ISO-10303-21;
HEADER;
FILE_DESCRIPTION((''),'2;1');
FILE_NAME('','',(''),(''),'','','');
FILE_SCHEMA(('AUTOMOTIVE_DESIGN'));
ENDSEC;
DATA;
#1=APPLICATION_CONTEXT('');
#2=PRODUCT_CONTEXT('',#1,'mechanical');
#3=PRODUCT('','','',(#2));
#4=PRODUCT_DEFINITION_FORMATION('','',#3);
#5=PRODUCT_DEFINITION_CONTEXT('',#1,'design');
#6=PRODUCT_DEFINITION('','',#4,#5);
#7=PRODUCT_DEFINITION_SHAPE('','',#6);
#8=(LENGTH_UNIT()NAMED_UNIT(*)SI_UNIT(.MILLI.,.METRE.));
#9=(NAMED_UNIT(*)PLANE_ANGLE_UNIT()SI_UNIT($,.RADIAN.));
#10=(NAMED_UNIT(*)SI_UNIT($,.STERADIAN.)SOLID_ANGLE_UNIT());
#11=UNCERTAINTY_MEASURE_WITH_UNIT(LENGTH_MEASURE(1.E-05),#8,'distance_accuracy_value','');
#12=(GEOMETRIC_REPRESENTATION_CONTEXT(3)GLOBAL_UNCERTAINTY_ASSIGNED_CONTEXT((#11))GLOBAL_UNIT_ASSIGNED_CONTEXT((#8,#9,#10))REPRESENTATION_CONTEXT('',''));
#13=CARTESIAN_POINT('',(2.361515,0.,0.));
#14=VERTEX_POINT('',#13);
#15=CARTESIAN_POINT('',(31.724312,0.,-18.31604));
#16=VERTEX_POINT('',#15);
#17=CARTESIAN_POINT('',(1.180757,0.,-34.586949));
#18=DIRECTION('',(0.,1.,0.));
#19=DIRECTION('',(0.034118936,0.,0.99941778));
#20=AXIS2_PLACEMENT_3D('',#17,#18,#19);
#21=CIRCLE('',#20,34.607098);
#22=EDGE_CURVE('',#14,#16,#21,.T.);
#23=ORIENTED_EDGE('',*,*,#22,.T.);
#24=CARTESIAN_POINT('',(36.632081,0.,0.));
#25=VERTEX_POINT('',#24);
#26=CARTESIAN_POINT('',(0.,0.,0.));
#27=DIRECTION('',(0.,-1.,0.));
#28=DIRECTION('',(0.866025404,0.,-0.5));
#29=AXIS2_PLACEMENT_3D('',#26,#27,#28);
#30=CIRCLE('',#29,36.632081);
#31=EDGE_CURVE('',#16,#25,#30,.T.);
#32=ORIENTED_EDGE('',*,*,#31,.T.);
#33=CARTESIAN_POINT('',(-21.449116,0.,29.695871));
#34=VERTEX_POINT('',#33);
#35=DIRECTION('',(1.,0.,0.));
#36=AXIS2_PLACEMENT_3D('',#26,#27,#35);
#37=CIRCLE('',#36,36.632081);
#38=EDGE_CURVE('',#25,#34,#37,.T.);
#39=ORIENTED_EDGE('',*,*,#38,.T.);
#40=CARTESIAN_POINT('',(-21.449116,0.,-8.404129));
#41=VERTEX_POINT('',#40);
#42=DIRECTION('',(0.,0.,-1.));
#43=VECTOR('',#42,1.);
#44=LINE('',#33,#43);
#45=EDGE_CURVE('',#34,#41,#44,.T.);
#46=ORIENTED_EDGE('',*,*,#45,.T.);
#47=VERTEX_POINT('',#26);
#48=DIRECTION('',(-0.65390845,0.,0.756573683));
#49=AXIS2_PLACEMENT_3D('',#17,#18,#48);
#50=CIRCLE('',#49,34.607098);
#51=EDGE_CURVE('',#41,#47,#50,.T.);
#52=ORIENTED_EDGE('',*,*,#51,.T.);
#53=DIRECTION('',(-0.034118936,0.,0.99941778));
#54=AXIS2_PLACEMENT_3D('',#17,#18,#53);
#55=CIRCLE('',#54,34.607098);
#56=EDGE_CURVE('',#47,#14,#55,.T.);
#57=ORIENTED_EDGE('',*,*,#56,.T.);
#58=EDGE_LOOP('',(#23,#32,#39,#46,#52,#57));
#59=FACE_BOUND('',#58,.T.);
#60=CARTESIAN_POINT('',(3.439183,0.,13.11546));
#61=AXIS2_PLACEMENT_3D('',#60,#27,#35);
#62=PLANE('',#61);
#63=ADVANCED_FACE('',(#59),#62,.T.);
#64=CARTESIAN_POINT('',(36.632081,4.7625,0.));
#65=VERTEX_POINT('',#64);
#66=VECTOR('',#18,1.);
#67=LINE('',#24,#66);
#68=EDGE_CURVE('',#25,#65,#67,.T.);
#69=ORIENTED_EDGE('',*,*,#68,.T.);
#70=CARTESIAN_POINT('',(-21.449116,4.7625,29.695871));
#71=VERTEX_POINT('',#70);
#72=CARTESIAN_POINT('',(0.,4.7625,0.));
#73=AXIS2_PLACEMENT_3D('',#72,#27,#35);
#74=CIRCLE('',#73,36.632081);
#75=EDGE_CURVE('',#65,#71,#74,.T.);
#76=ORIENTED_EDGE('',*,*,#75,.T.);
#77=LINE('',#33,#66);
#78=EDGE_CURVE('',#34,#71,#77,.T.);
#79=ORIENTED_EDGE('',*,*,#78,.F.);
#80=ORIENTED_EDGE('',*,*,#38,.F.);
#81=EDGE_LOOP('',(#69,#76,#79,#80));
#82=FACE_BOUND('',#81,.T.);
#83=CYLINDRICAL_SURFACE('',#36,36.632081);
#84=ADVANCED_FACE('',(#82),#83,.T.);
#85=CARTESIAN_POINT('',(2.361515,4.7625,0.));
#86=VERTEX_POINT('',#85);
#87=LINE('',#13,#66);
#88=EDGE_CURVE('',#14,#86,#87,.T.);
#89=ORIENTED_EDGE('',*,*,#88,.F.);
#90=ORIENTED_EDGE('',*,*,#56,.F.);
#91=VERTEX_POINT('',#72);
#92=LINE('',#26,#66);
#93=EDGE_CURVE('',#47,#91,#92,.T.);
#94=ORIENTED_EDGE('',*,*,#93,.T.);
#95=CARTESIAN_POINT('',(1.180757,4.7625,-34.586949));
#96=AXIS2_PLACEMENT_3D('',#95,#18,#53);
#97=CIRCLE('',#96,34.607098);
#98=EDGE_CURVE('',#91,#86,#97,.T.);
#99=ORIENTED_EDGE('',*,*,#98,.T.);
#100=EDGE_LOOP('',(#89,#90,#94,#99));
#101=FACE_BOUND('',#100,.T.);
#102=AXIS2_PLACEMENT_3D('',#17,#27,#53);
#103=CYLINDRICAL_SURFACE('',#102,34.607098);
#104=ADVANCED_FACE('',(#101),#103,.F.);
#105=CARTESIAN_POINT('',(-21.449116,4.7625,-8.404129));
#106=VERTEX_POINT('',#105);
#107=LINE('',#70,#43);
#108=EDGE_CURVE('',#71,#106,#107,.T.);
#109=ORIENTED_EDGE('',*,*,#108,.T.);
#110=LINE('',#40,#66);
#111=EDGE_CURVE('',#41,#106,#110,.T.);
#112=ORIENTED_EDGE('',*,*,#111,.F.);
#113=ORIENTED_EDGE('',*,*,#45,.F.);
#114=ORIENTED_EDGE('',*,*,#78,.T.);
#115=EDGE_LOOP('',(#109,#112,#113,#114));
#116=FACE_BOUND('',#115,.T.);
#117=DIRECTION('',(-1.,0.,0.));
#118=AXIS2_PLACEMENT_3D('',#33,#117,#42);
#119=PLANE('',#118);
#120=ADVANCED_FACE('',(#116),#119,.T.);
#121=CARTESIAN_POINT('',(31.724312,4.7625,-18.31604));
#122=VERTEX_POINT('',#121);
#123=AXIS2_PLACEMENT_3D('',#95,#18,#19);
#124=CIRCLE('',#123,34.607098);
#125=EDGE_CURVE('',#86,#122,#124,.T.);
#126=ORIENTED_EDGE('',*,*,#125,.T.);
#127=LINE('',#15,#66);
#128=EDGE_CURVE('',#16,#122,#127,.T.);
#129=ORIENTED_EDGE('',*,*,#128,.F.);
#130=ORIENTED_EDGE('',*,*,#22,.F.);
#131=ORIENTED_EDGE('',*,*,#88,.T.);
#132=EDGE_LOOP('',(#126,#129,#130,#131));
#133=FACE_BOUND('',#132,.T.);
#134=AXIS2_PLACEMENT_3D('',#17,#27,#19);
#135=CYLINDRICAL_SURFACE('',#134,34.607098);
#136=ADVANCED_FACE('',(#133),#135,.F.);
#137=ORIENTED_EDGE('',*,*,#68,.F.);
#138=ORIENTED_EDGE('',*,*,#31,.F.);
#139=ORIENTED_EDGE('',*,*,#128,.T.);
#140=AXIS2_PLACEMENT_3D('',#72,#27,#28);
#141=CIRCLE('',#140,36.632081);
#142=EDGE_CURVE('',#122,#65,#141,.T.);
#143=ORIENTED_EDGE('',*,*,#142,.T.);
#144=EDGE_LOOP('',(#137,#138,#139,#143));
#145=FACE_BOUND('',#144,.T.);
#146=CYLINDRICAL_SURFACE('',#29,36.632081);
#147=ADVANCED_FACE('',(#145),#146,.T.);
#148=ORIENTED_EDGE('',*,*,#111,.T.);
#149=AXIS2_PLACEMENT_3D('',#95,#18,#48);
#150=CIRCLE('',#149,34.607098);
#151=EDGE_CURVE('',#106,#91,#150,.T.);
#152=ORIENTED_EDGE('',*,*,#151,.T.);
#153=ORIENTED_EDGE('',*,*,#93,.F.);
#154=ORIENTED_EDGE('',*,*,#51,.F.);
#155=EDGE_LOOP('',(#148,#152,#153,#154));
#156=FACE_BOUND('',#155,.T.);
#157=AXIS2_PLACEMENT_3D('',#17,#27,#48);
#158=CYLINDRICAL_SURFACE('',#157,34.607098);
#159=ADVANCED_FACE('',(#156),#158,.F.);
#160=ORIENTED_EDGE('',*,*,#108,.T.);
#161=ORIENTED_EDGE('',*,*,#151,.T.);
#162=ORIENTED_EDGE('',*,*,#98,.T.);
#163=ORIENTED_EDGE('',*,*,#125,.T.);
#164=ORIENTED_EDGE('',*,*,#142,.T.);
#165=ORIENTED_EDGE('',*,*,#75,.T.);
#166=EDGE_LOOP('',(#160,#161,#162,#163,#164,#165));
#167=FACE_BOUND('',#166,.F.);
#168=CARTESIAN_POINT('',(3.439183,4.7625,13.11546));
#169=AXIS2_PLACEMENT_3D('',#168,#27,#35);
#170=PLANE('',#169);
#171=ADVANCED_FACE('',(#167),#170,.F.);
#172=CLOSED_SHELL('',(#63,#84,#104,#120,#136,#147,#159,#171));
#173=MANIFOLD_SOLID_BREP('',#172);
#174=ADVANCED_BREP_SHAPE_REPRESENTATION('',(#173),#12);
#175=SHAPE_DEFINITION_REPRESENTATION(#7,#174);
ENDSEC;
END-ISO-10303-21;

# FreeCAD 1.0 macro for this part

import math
import FreeCAD as App
import Part
import Sketcher
from FreeCAD import Vector
Q = App.Units.Quantity

doc = App.newDocument("Part")
body = doc.addObject("PartDesign::Body", "Body")

sketch1 = body.newObject("Sketcher::SketchObject", "Sketch")
sketch1.AttachmentSupport = (doc.getObject("XZ_Plane"), [""])
sketch1.MapMode = "FlatFace"
sketch1.addGeometry([
    Part.ArcOfCircle(Part.Circle(Vector(0, 0, 0), Vector(0, 0, 1), 36.632081), math.radians(0), math.radians(125.840314)),
    Part.LineSegment(Vector(-21.449116, 29.695871, 0), Vector(-21.449116, -8.404129, 0)),
    Part.ArcOfCircle(Part.Circle(Vector(1.180757, -34.586949, 0), Vector(0, 0, 1), 34.607098), math.radians(91.955251), math.radians(130.836935)),
    Part.ArcOfCircle(Part.Circle(Vector(1.180757, -34.586949, 0), Vector(0, 0, 1), 34.607098), math.radians(88.044749), math.radians(91.955251)),
    Part.ArcOfCircle(Part.Circle(Vector(1.180757, -34.586949, 0), Vector(0, 0, 1), 34.607098), math.radians(28.044749), math.radians(88.044749)),
    Part.ArcOfCircle(Part.Circle(Vector(0, 0, 0), Vector(0, 0, 1), 36.632081), math.radians(-30), math.radians(0)),
], False)
sketch1.addConstraint([
    Sketcher.Constraint("Coincident", 0, 2, 1, 1),
    Sketcher.Constraint("Coincident", 1, 2, 2, 2),
    Sketcher.Constraint("Tangent", 2, 1, 3, 2),
    Sketcher.Constraint("Tangent", 3, 1, 4, 2),
    Sketcher.Constraint("Coincident", 4, 1, 5, 1),
    Sketcher.Constraint("Tangent", 5, 2, 0, 1),
    Sketcher.Constraint("Vertical", 1),
    Sketcher.Constraint("Coincident", 0, 3, -1, 1),
    Sketcher.Constraint("Coincident", 2, 1, -1, 1),
    Sketcher.Constraint("Coincident", 4, 3, 2, 3),
    Sketcher.Constraint("Equal", 0, 5),
    Sketcher.Constraint("PointOnObject", 3, 1, -1),
    Sketcher.Constraint("PointOnObject", 5, 2, -1),
    Sketcher.Constraint("DistanceY", 1, 2, 1, 1, Q("1.5 in")),
    Sketcher.Constraint("Radius", 0, Q("36.632081 mm")),
    Sketcher.Constraint("Radius", 2, Q("34.607098 mm")),
    Sketcher.Constraint("DistanceY", 2, 3, -1, 1, Q("34.586949 mm")),
])
pad1 = body.newObject("PartDesign::Pad", "Pad")
pad1.Profile = sketch1
pad1.Length = Q("0.1875 in")
pad1.Reversed = True

doc.recompute()
